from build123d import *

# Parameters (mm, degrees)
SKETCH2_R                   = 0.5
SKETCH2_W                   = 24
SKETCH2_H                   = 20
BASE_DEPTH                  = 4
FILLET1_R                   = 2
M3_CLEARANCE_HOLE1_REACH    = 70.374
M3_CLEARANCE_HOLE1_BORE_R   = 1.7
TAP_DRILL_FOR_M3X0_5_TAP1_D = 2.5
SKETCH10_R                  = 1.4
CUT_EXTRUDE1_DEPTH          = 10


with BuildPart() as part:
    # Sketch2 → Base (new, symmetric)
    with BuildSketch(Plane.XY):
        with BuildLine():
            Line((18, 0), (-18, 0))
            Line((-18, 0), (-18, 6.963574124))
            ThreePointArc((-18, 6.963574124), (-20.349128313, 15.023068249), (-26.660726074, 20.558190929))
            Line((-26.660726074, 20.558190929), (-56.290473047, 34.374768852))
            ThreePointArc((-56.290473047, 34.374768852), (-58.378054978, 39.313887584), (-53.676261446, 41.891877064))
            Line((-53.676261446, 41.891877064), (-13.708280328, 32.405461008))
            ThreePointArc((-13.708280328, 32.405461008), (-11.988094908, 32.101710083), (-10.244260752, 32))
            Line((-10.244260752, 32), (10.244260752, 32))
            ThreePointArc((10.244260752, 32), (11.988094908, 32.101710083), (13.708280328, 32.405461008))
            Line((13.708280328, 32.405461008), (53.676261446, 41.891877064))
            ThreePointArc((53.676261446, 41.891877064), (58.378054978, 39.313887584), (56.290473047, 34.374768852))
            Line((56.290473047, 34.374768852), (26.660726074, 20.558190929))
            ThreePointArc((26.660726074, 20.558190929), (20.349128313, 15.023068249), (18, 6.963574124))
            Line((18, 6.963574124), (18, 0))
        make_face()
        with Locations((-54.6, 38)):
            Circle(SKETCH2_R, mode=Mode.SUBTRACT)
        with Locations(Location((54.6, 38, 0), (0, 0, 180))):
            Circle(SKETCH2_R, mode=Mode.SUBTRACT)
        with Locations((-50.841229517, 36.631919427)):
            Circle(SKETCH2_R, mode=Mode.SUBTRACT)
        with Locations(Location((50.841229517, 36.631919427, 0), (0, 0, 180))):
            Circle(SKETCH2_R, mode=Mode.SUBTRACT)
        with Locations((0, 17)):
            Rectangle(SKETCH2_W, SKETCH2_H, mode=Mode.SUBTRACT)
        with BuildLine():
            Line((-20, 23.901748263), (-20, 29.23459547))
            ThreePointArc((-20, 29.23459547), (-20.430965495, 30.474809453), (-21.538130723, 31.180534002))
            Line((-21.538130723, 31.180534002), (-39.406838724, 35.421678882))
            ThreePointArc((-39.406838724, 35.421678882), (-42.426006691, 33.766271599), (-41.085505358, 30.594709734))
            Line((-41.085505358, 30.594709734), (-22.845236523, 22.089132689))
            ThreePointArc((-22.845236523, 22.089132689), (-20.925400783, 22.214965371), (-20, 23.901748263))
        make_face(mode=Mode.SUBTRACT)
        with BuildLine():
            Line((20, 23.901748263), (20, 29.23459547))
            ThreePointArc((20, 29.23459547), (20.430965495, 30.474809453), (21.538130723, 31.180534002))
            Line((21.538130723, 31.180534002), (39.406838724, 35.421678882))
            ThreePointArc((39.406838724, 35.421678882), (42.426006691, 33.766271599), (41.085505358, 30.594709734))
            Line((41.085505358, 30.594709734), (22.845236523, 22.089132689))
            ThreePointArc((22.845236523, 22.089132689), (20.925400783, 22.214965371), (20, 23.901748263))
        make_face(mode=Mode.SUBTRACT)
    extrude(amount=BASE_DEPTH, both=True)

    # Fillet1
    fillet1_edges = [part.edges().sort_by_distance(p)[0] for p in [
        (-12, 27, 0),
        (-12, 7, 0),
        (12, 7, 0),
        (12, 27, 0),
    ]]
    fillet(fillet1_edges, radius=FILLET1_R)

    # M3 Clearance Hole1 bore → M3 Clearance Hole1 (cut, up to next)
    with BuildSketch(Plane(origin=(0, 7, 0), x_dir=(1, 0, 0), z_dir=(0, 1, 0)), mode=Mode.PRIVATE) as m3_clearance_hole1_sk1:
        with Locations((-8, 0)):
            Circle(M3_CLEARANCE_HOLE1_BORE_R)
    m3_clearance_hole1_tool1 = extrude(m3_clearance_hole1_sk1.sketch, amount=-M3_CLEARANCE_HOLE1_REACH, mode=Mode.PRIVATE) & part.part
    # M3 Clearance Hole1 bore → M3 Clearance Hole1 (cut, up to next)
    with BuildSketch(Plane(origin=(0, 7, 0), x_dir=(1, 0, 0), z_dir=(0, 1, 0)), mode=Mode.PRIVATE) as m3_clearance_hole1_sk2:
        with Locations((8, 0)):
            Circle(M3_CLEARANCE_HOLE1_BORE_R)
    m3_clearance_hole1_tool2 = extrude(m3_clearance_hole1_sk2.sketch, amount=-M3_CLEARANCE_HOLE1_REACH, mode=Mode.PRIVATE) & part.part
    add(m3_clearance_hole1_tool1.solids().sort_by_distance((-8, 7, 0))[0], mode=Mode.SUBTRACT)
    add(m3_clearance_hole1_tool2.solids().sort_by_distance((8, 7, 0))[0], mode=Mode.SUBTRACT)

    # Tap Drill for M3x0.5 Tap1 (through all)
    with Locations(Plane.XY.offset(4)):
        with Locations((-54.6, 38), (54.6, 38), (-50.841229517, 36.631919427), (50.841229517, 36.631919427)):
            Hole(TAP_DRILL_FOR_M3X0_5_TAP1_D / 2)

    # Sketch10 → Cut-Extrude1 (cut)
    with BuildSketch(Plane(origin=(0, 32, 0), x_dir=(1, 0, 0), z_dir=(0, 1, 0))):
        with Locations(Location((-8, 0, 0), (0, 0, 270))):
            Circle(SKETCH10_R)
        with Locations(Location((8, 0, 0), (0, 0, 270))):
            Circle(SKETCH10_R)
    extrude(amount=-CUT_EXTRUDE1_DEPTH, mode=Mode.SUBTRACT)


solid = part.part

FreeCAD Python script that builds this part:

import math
import FreeCAD as App
import Part
import Sketcher

V = App.Vector
Q = App.Units.Quantity


def edges_at(feature, points):
    """Names of the edges that pass closest to the given points."""
    edges = feature.Shape.Edges
    near = lambda p: min(range(len(edges)), key=lambda i: edges[i].distToShape(Part.Vertex(*p))[0])
    return sorted({f"Edge{near(p) + 1}" for p in points})


def add_polygon(sketch, points):
    """Adds a closed chain of lines whose ends are joined by coincident constraints."""
    first, n = sketch.GeometryCount, len(points)
    for a, b in zip(points, points[1:] + points[:1]):
        sketch.addGeometry(Part.LineSegment(App.Vector(*a, 0), App.Vector(*b, 0)), False)
    for i in range(n):
        sketch.addConstraint(Sketcher.Constraint("Coincident", first + i, 2, first + (i + 1) % n, 1))

doc = App.newDocument("Part")
body = doc.addObject("PartDesign::Body", "Body")

# Sketch on XY plane
sketch1 = doc.addObject("Sketcher::SketchObject", "Sketch")
body.addObject(sketch1)
sketch1.AttachmentSupport = (doc.XY_Plane, [""])
sketch1.MapMode = "FlatFace"
sketch1.addGeometry(Part.LineSegment(V(-18, 0, 0), V(18, 0, 0)), False)  # 0
sketch1.addGeometry(Part.LineSegment(V(18, 0, 0), V(18, 6.963574, 0)), False)  # 1
sketch1.addGeometry(Part.ArcOfCircle(Part.Circle(V(33, 6.963574, 0), V(0, 0, 1), 15), math.radians(115), math.radians(180)), False)  # 2
sketch1.addGeometry(Part.LineSegment(V(26.660726, 20.558191, 0), V(56.290473, 34.374769, 0)), False)  # 3
sketch1.addGeometry(Part.ArcOfCircle(Part.Circle(V(54.6, 38, 0), V(0, 0, 1), 4), math.radians(-65), math.radians(103.352104)), False)  # 4
sketch1.addGeometry(Part.LineSegment(V(53.676261, 41.891877, 0), V(13.70828, 32.405461, 0)), False)  # 5
sketch1.addGeometry(Part.ArcOfCircle(Part.Circle(V(10.244261, 47, 0), V(0, 0, 1), 15), math.radians(-90), math.radians(-76.647896)), False)  # 6
sketch1.addGeometry(Part.LineSegment(V(10.244261, 32, 0), V(-10.244261, 32, 0)), False)  # 7
sketch1.addGeometry(Part.ArcOfCircle(Part.Circle(V(-10.244261, 47, 0), V(0, 0, 1), 15), math.radians(-103.352104), math.radians(-90)), False)  # 8
sketch1.addGeometry(Part.LineSegment(V(-13.70828, 32.405461, 0), V(-53.676261, 41.891877, 0)), False)  # 9
sketch1.addGeometry(Part.ArcOfCircle(Part.Circle(V(-54.6, 38, 0), V(0, 0, 1), 4), math.radians(76.647896), math.radians(245)), False)  # 10
sketch1.addGeometry(Part.LineSegment(V(-56.290473, 34.374769, 0), V(-26.660726, 20.558191, 0)), False)  # 11
sketch1.addGeometry(Part.ArcOfCircle(Part.Circle(V(-33, 6.963574, 0), V(0, 0, 1), 15), math.radians(0), math.radians(65)), False)  # 12
sketch1.addGeometry(Part.LineSegment(V(-18, 6.963574, 0), V(-18, 0, 0)), False)  # 13
add_polygon(sketch1, [(-12, 7), (-12, 27), (12, 27), (12, 7)])  # lines 14-17
sketch1.addGeometry(Part.LineSegment(V(20, 23.901748, 0), V(20, 29.234595, 0)), False)  # 18
sketch1.addGeometry(Part.ArcOfCircle(Part.Circle(V(22, 29.234595, 0), V(0, 0, 1), 2), math.radians(103.352104), math.radians(180)), False)  # 19
sketch1.addGeometry(Part.LineSegment(V(21.538131, 31.180534, 0), V(39.406839, 35.421679, 0)), False)  # 20
sketch1.addGeometry(Part.ArcOfCircle(Part.Circle(V(40, 32.922583, 0), V(0, 0, 1), 2.568524), math.radians(-65), math.radians(103.352104)), False)  # 21
sketch1.addGeometry(Part.LineSegment(V(41.085505, 30.59471, 0), V(22.845237, 22.089133, 0)), False)  # 22
sketch1.addGeometry(Part.ArcOfCircle(Part.Circle(V(22, 23.901748, 0), V(0, 0, 1), 2), math.radians(180), math.radians(295)), False)  # 23
sketch1.addGeometry(Part.Circle(V(50.84123, 36.631919, 0), V(0, 0, 1), 0.5), False)  # 24
sketch1.addGeometry(Part.Circle(V(54.6, 38, 0), V(0, 0, 1), 0.5), False)  # 25
sketch1.addGeometry(Part.ArcOfCircle(Part.Circle(V(-22, 23.901748, 0), V(0, 0, 1), 2), math.radians(-115), math.radians(0)), False)  # 26
sketch1.addGeometry(Part.LineSegment(V(-22.845237, 22.089133, 0), V(-41.085505, 30.59471, 0)), False)  # 27
sketch1.addGeometry(Part.ArcOfCircle(Part.Circle(V(-40, 32.922583, 0), V(0, 0, 1), 2.568524), math.radians(76.647896), math.radians(245)), False)  # 28
sketch1.addGeometry(Part.LineSegment(V(-39.406839, 35.421679, 0), V(-21.538131, 31.180534, 0)), False)  # 29
sketch1.addGeometry(Part.ArcOfCircle(Part.Circle(V(-22, 29.234595, 0), V(0, 0, 1), 2), math.radians(0), math.radians(76.647896)), False)  # 30
sketch1.addGeometry(Part.LineSegment(V(-20, 29.234595, 0), V(-20, 23.901748, 0)), False)  # 31
sketch1.addGeometry(Part.Circle(V(-50.84123, 36.631919, 0), V(0, 0, 1), 0.5), False)  # 32
sketch1.addGeometry(Part.Circle(V(-54.6, 38, 0), V(0, 0, 1), 0.5), False)  # 33
sketch1.addConstraint([
    Sketcher.Constraint("Coincident", 0, 2, 1, 1),
    Sketcher.Constraint("Tangent", 1, 2, 2, 2),
    Sketcher.Constraint("Tangent", 2, 1, 3, 1),
    Sketcher.Constraint("Tangent", 3, 2, 4, 1),
    Sketcher.Constraint("Tangent", 4, 2, 5, 1),
    Sketcher.Constraint("Tangent", 5, 2, 6, 2),
    Sketcher.Constraint("Tangent", 6, 1, 7, 1),
    Sketcher.Constraint("Tangent", 7, 2, 8, 2),
    Sketcher.Constraint("Tangent", 8, 1, 9, 1),
    Sketcher.Constraint("Tangent", 9, 2, 10, 1),
    Sketcher.Constraint("Tangent", 10, 2, 11, 1),
    Sketcher.Constraint("Tangent", 11, 2, 12, 2),
    Sketcher.Constraint("Tangent", 12, 1, 13, 1),
    Sketcher.Constraint("Coincident", 13, 2, 0, 1),
    Sketcher.Constraint("Tangent", 18, 2, 19, 2),
    Sketcher.Constraint("Tangent", 19, 1, 20, 1),
    Sketcher.Constraint("Tangent", 20, 2, 21, 2),
    Sketcher.Constraint("Tangent", 21, 1, 22, 1),
    Sketcher.Constraint("Tangent", 22, 2, 23, 2),
    Sketcher.Constraint("Tangent", 23, 1, 18, 1),
    Sketcher.Constraint("Tangent", 26, 1, 27, 1),
    Sketcher.Constraint("Tangent", 27, 2, 28, 2),
    Sketcher.Constraint("Tangent", 28, 1, 29, 1),
    Sketcher.Constraint("Tangent", 29, 2, 30, 2),
    Sketcher.Constraint("Tangent", 30, 1, 31, 1),
    Sketcher.Constraint("Tangent", 31, 2, 26, 2),
    Sketcher.Constraint("Horizontal", 0),
    Sketcher.Constraint("Vertical", 1),
    Sketcher.Constraint("Horizontal", 7),
    Sketcher.Constraint("Vertical", 13),
    Sketcher.Constraint("Vertical", 14),
    Sketcher.Constraint("Horizontal", 15),
    Sketcher.Constraint("Vertical", 16),
    Sketcher.Constraint("Horizontal", 17),
    Sketcher.Constraint("Vertical", 18),
    Sketcher.Constraint("Vertical", 31),
    Sketcher.Constraint("Coincident", 25, 3, 4, 3),
    Sketcher.Constraint("Coincident", 33, 3, 10, 3),
    Sketcher.Constraint("Equal", 2, 6),
    Sketcher.Constraint("Equal", 6, 8),
    Sketcher.Constraint("Equal", 4, 10),
    Sketcher.Constraint("Equal", 8, 12),
    Sketcher.Constraint("Equal", 19, 23),
    Sketcher.Constraint("Equal", 24, 25),
    Sketcher.Constraint("Equal", 23, 26),
    Sketcher.Constraint("Equal", 21, 28),
    Sketcher.Constraint("Equal", 26, 30),
    Sketcher.Constraint("Equal", 25, 32),
    Sketcher.Constraint("Equal", 32, 33),
    Sketcher.Constraint("Symmetric", 0, 2, 13, 2, -1, 1),
    Sketcher.Constraint("Symmetric", 4, 3, 10, 3, -2),
    Sketcher.Constraint("Symmetric", 23, 3, 26, 3, -2),
    Sketcher.Constraint("Symmetric", 21, 3, 28, 3, -2),
    Sketcher.Constraint("Symmetric", 24, 3, 32, 3, -2),
    Sketcher.Constraint("Parallel", 5, 20),
    Sketcher.Constraint("Parallel", 3, 22),
    Sketcher.Constraint("Parallel", 11, 27),
    Sketcher.Constraint("Parallel", 9, 29),
    Sketcher.Constraint("Horizontal", 19, 3, 30, 3),
    Sketcher.Constraint("Diameter", 24, Q("1 mm")),
    Sketcher.Constraint("Radius", 2, Q("15 mm")),
    Sketcher.Constraint("Radius", 4, Q("4 mm")),
    Sketcher.Constraint("Radius", 19, Q("2 mm")),
    Sketcher.Constraint("DistanceX", 0, 1, 0, 2, Q("36 mm")),
    Sketcher.Constraint("DistanceX", 15, 1, 15, 2, Q("24 mm")),
    Sketcher.Constraint("DistanceY", 14, 1, 14, 2, Q("20 mm")),
    Sketcher.Constraint("Angle", 3, Q("25 deg")),
    Sketcher.Constraint("DistanceY", -1, 1, 4, 3, Q("38 mm")),
    Sketcher.Constraint("DistanceY", -1, 1, 6, 3, Q("47 mm")),
    Sketcher.Constraint("DistanceX", -1, 1, 19, 3, Q("22 mm")),
    Sketcher.Constraint("DistanceX", -1, 1, 21, 3, Q("40 mm")),
    Sketcher.Constraint("DistanceX", 14, 2, -1, 1, Q("12 mm")),
    Sketcher.Constraint("DistanceY", -1, 1, 14, 2, Q("27 mm")),
    Sketcher.Constraint("DistanceX", -1, 1, 4, 3, Q("54.6 mm")),
    Sketcher.Constraint("Radius", 21, Q("2.568524 mm")),
    Sketcher.Constraint("DistanceX", 7, 2, 7, 1, Q("20.488522 mm")),
    Sketcher.Constraint("DistanceY", 20, 2, 4, 2, Q("6.470198 mm")),
    Sketcher.Constraint("DistanceX", -1, 1, 24, 3, Q("50.84123 mm")),
    Sketcher.Constraint("DistanceY", -1, 1, 24, 3, Q("36.631919 mm")),
])
pad1 = doc.addObject("PartDesign::Pad", "Pad")
body.addObject(pad1)
pad1.Profile = sketch1
pad1.Length = 8
pad1.Midplane = True
doc.recompute()

fillet = doc.addObject("PartDesign::Fillet", "Fillet")
body.addObject(fillet)
fillet.Base = (pad1, edges_at(pad1, [
    (-12, 27, 0),
    (-12, 7, 0),
    (12, 7, 0),
    (12, 27, 0),
]))
fillet.Radius = 2

# Sketch on XZ plane
sketch2 = doc.addObject("Sketcher::SketchObject", "Sketch001")
body.addObject(sketch2)
sketch2.AttachmentSupport = (doc.XZ_Plane, [""])
sketch2.MapMode = "FlatFace"
sketch2.AttachmentOffset = App.Placement(V(0, 0, -7), App.Rotation())
sketch2.addGeometry(Part.Circle(V(-8, 0, 0), V(0, 0, 1), 1.7), False)
sketch2.addConstraint([
    Sketcher.Constraint("PointOnObject", 0, 3, -1),
    Sketcher.Constraint("Diameter", 0, Q("3.4 mm")),
    Sketcher.Constraint("DistanceX", 0, 3, -1, 1, Q("8 mm")),
])
pocket1 = doc.addObject("PartDesign::Pocket", "Pocket")
body.addObject(pocket1)
pocket1.Profile = sketch2
pocket1.Type = "UpToFirst"
pocket1.Reversed = True

# Sketch on XZ plane
sketch3 = doc.addObject("Sketcher::SketchObject", "Sketch002")
body.addObject(sketch3)
sketch3.AttachmentSupport = (doc.XZ_Plane, [""])
sketch3.MapMode = "FlatFace"
sketch3.AttachmentOffset = App.Placement(V(0, 0, -7), App.Rotation())
sketch3.addGeometry(Part.Circle(V(8, 0, 0), V(0, 0, 1), 1.7), False)
sketch3.addConstraint([
    Sketcher.Constraint("PointOnObject", 0, 3, -1),
    Sketcher.Constraint("Diameter", 0, Q("3.4 mm")),
    Sketcher.Constraint("DistanceX", -1, 1, 0, 3, Q("8 mm")),
])
pocket2 = doc.addObject("PartDesign::Pocket", "Pocket001")
body.addObject(pocket2)
pocket2.Profile = sketch3
pocket2.Type = "UpToFirst"
pocket2.Reversed = True

# Sketch on XY plane
sketch4 = doc.addObject("Sketcher::SketchObject", "Sketch003")
body.addObject(sketch4)
sketch4.AttachmentSupport = (doc.XY_Plane, [""])
sketch4.MapMode = "FlatFace"
sketch4.AttachmentOffset = App.Placement(V(0, 0, 4), App.Rotation())
sketch4.addGeometry([
    Part.Circle(V(-54.6, 38, 0), V(0, 0, 1), 1.25),
    Part.Circle(V(54.6, 38, 0), V(0, 0, 1), 1.25),
    Part.Circle(V(-50.84123, 36.631919, 0), V(0, 0, 1), 1.25),
    Part.Circle(V(50.84123, 36.631919, 0), V(0, 0, 1), 1.25),
], False)
sketch4.addConstraint([
    Sketcher.Constraint("Equal", 0, 1),
    Sketcher.Constraint("Equal", 1, 2),
    Sketcher.Constraint("Equal", 2, 3),
    Sketcher.Constraint("Symmetric", 0, 3, 1, 3, -2),
    Sketcher.Constraint("Symmetric", 2, 3, 3, 3, -2),
    Sketcher.Constraint("Diameter", 0, Q("2.5 mm")),
    Sketcher.Constraint("DistanceY", -1, 1, 0, 3, Q("38 mm")),
    Sketcher.Constraint("DistanceX", 0, 3, -1, 1, Q("54.6 mm")),
    Sketcher.Constraint("DistanceX", 2, 3, -1, 1, Q("50.84123 mm")),
    Sketcher.Constraint("DistanceY", -1, 1, 2, 3, Q("36.631919 mm")),
])
doc.recompute()
hole = doc.addObject("PartDesign::Hole", "Hole")
body.addObject(hole)
hole.Profile = sketch4
hole.ThreadType = "None"
hole.Diameter = 2.5
hole.DepthType = "ThroughAll"

# Sketch on XZ plane
sketch5 = doc.addObject("Sketcher::SketchObject", "Sketch004")
body.addObject(sketch5)
sketch5.AttachmentSupport = (doc.XZ_Plane, [""])
sketch5.MapMode = "FlatFace"
sketch5.AttachmentOffset = App.Placement(V(0, 0, -32), App.Rotation())
sketch5.addGeometry([
    Part.Circle(V(-8, 0, 0), V(0, 0, 1), 1.4),
    Part.Circle(V(8, 0, 0), V(0, 0, 1), 1.4),
], False)
sketch5.addConstraint([
    Sketcher.Constraint("Equal", 0, 1),
    Sketcher.Constraint("Symmetric", 0, 3, 1, 3, -1, 1),
    Sketcher.Constraint("PointOnObject", 0, 3, -1),
    Sketcher.Constraint("Diameter", 0, Q("2.8 mm")),
    Sketcher.Constraint("DistanceX", 0, 3, -1, 1, Q("8 mm")),
])
pocket3 = doc.addObject("PartDesign::Pocket", "Pocket002")
body.addObject(pocket3)
pocket3.Profile = sketch5
pocket3.Length = 10
pocket3.Reversed = True

doc.recompute()
